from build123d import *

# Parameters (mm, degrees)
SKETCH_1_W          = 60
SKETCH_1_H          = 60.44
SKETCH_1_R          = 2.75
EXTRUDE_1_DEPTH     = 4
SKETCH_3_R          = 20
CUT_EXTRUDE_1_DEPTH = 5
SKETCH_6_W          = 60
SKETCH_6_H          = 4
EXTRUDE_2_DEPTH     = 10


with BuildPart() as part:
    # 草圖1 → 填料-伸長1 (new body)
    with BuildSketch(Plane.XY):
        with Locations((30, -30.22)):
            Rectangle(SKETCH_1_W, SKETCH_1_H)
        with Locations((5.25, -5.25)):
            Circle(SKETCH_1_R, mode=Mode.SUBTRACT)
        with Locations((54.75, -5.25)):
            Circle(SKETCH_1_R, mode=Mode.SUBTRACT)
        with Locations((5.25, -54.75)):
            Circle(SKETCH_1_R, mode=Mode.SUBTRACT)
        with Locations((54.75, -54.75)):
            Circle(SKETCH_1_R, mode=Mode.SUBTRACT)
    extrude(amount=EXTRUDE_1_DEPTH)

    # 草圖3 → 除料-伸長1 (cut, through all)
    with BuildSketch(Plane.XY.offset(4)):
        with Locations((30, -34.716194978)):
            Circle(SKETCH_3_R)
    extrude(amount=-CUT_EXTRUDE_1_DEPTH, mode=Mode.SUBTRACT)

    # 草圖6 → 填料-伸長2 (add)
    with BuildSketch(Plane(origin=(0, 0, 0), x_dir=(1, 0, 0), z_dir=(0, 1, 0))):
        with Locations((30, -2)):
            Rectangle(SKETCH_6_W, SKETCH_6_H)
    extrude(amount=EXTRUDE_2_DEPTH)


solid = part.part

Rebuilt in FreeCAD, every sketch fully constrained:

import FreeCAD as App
import Part
import Sketcher

doc = App.newDocument("Part")
params = doc.addObject("Spreadsheet::Sheet", "Params")
for row, (alias, value) in enumerate([
    ("sketch1_diameter", "5.5 mm"),
    ("sketch1_width", "60 mm"),
    ("sketch1_height", "60.44 mm"),
    ("pad1_length", "4 mm"),
    ("sketch2_diameter", "40 mm"),
    ("sketch3_width", "60 mm"),
    ("sketch3_height", "4 mm"),
    ("pad2_length", "10 mm"),
], start=1):
    params.set(f"A{row}", alias)
    params.set(f"B{row}", "=" + value)
    params.setAlias(f"B{row}", alias)

body = doc.addObject("PartDesign::Body", "Body")

# Sketch on XY plane
sketch1 = doc.addObject("Sketcher::SketchObject", "Sketch")
body.addObject(sketch1)
sketch1.AttachmentSupport = (doc.XY_Plane, [""])
sketch1.MapMode = "FlatFace"
sketch1.addGeometry(Part.LineSegment(App.Vector(0, 0, 0), App.Vector(0, -60.44, 0)), False)
sketch1.addGeometry(Part.LineSegment(App.Vector(0, -60.44, 0), App.Vector(60, -60.44, 0)), False)
sketch1.addGeometry(Part.LineSegment(App.Vector(60, -60.44, 0), App.Vector(60, 0, 0)), False)
sketch1.addGeometry(Part.LineSegment(App.Vector(60, 0, 0), App.Vector(0, 0, 0)), False)
sketch1.addGeometry(Part.Circle(App.Vector(5.25, -54.75, 0), App.Vector(0, 0, 1), 2.75), False)
sketch1.addGeometry(Part.Circle(App.Vector(54.75, -54.75, 0), App.Vector(0, 0, 1), 2.75), False)
sketch1.addGeometry(Part.Circle(App.Vector(5.25, -5.25, 0), App.Vector(0, 0, 1), 2.75), False)
sketch1.addGeometry(Part.Circle(App.Vector(54.75, -5.25, 0), App.Vector(0, 0, 1), 2.75), False)
sketch1.addConstraint(Sketcher.Constraint("Coincident", 0, 2, 1, 1))
sketch1.addConstraint(Sketcher.Constraint("Coincident", 1, 2, 2, 1))
sketch1.addConstraint(Sketcher.Constraint("Coincident", 2, 2, 3, 1))
sketch1.addConstraint(Sketcher.Constraint("Coincident", 3, 2, 0, 1))
sketch1.addConstraint(Sketcher.Constraint("Vertical", 0))
sketch1.addConstraint(Sketcher.Constraint("Horizontal", 1))
sketch1.addConstraint(Sketcher.Constraint("Vertical", 2))
sketch1.addConstraint(Sketcher.Constraint("Horizontal", 3))
sketch1.addConstraint(Sketcher.Constraint("Coincident", 3, 2, -1, 1))
sketch1.addConstraint(Sketcher.Constraint("Equal", 4, 5))
sketch1.addConstraint(Sketcher.Constraint("Equal", 5, 6))
sketch1.addConstraint(Sketcher.Constraint("Equal", 6, 7))
sketch1.addConstraint(Sketcher.Constraint("Horizontal", 4, 3, 5, 3))
sketch1.addConstraint(Sketcher.Constraint("Horizontal", 6, 3, 7, 3))
sketch1.addConstraint(Sketcher.Constraint("Vertical", 4, 3, 6, 3))
sketch1.addConstraint(Sketcher.Constraint("Vertical", 5, 3, 7, 3))
sketch1.addConstraint(Sketcher.Constraint("Diameter", 4, 5.5))
sketch1.addConstraint(Sketcher.Constraint("DistanceX", 1, 1, 1, 2, 60.0))
sketch1.addConstraint(Sketcher.Constraint("DistanceY", 0, 2, 0, 1, 60.44))
sketch1.addConstraint(Sketcher.Constraint("DistanceX", 4, 3, 5, 3, 49.5))
sketch1.addConstraint(Sketcher.Constraint("DistanceY", 4, 3, 6, 3, 49.5))
sketch1.addConstraint(Sketcher.Constraint("DistanceX", -1, 1, 4, 3, 5.25))
sketch1.addConstraint(Sketcher.Constraint("DistanceY", 4, 3, -1, 1, 54.75))
sketch1.setExpression("Constraints[16]", "Params.sketch1_diameter")
sketch1.setExpression("Constraints[17]", "Params.sketch1_width")
sketch1.setExpression("Constraints[18]", "Params.sketch1_height")
pad1 = doc.addObject("PartDesign::Pad", "Pad")
body.addObject(pad1)
pad1.Profile = sketch1
pad1.setExpression("Length", "Params.pad1_length")

# Sketch on XY plane
sketch2 = doc.addObject("Sketcher::SketchObject", "Sketch001")
body.addObject(sketch2)
sketch2.AttachmentSupport = (doc.XY_Plane, [""])
sketch2.MapMode = "FlatFace"
sketch2.AttachmentOffset = App.Placement(App.Vector(0, 0, 4), App.Rotation())
sketch2.addGeometry(Part.Circle(App.Vector(30, -34.716195, 0), App.Vector(0, 0, 1), 20), False)
sketch2.addConstraint(Sketcher.Constraint("Diameter", 0, 40.0))
sketch2.addConstraint(Sketcher.Constraint("DistanceX", -1, 1, 0, 3, 30.0))
sketch2.addConstraint(Sketcher.Constraint("DistanceY", 0, 3, -1, 1, 34.716195))
sketch2.setExpression("Constraints[0]", "Params.sketch2_diameter")
pocket1 = doc.addObject("PartDesign::Pocket", "Pocket")
body.addObject(pocket1)
pocket1.Profile = sketch2
pocket1.Type = "ThroughAll"

# Sketch on XZ plane
sketch3 = doc.addObject("Sketcher::SketchObject", "Sketch002")
body.addObject(sketch3)
sketch3.AttachmentSupport = (doc.XZ_Plane, [""])
sketch3.MapMode = "FlatFace"
sketch3.addGeometry(Part.LineSegment(App.Vector(0, 0, 0), App.Vector(0, 4, 0)), False)
sketch3.addGeometry(Part.LineSegment(App.Vector(0, 4, 0), App.Vector(60, 4, 0)), False)
sketch3.addGeometry(Part.LineSegment(App.Vector(60, 4, 0), App.Vector(60, 0, 0)), False)
sketch3.addGeometry(Part.LineSegment(App.Vector(60, 0, 0), App.Vector(0, 0, 0)), False)
sketch3.addConstraint(Sketcher.Constraint("Coincident", 0, 2, 1, 1))
sketch3.addConstraint(Sketcher.Constraint("Coincident", 1, 2, 2, 1))
sketch3.addConstraint(Sketcher.Constraint("Coincident", 2, 2, 3, 1))
sketch3.addConstraint(Sketcher.Constraint("Coincident", 3, 2, 0, 1))
sketch3.addConstraint(Sketcher.Constraint("Vertical", 0))
sketch3.addConstraint(Sketcher.Constraint("Horizontal", 1))
sketch3.addConstraint(Sketcher.Constraint("Vertical", 2))
sketch3.addConstraint(Sketcher.Constraint("Horizontal", 3))
sketch3.addConstraint(Sketcher.Constraint("Coincident", 3, 2, -1, 1))
sketch3.addConstraint(Sketcher.Constraint("DistanceX", 1, 1, 1, 2, 60.0))
sketch3.addConstraint(Sketcher.Constraint("DistanceY", 0, 1, 0, 2, 4.0))
sketch3.setExpression("Constraints[9]", "Params.sketch3_width")
sketch3.setExpression("Constraints[10]", "Params.sketch3_height")
pad2 = doc.addObject("PartDesign::Pad", "Pad001")
body.addObject(pad2)
pad2.Profile = sketch3
pad2.setExpression("Length", "Params.pad2_length")
pad2.Reversed = True

doc.recompute()
